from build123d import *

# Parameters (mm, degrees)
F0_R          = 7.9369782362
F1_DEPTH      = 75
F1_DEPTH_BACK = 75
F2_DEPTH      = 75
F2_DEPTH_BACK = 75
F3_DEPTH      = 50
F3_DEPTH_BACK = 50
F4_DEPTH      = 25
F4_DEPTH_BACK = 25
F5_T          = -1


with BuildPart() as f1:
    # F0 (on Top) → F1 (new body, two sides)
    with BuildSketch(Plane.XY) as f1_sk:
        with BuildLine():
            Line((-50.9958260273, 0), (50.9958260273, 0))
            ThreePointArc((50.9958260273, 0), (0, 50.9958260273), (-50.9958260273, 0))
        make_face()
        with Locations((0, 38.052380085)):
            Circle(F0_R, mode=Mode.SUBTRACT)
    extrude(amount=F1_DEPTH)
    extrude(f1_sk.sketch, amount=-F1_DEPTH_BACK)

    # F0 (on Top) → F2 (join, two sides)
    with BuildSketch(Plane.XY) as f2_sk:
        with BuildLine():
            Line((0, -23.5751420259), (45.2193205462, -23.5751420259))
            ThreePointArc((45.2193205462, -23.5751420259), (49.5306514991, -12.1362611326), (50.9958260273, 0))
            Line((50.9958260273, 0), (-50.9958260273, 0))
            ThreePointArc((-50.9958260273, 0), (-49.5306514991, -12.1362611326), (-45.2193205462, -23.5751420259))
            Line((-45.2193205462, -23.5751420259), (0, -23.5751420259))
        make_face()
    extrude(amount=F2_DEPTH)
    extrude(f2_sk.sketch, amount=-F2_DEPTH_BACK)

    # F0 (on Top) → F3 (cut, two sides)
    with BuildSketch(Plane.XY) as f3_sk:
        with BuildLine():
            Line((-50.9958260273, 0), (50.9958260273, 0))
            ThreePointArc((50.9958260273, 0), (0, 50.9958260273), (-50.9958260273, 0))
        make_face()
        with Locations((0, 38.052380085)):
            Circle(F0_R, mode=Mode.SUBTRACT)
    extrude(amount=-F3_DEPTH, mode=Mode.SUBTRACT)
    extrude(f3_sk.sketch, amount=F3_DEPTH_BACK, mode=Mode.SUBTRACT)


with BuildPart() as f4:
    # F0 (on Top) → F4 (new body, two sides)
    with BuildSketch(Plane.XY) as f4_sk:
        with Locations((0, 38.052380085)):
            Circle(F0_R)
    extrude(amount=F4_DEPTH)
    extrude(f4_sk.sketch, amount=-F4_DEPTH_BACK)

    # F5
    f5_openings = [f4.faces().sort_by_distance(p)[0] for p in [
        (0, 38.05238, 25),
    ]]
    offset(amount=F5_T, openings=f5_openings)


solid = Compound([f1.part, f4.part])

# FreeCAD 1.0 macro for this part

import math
import FreeCAD as App
import Part
import Sketcher

V = App.Vector
Q = App.Units.Quantity


def faces_at(feature, points):
    """Names of the faces that lie closest to the given points."""
    faces = feature.Shape.Faces
    near = lambda p: min(range(len(faces)), key=lambda i: faces[i].distToShape(Part.Vertex(*p))[0])
    return sorted({f"Face{near(p) + 1}" for p in points})

doc = App.newDocument("Part")
params = doc.addObject("Spreadsheet::Sheet", "Params")
for row, (alias, value) in enumerate([
    ("pad1_length", "75 mm"),
    ("pad1_length2", "75 mm"),
    ("pad2_length", "75 mm"),
    ("pad2_length2", "75 mm"),
    ("pocket1_length", "50 mm"),
    ("pocket1_length2", "50 mm"),
    ("pad3_length", "25 mm"),
    ("pad3_length2", "25 mm"),
    ("thickness_wall", "1 mm"),
], start=1):
    params.set(f"A{row}", alias)
    params.set(f"B{row}", "=" + value)
    params.setAlias(f"B{row}", alias)

body = doc.addObject("PartDesign::Body", "Body")

# Sketch on XY plane
sketch1 = doc.addObject("Sketcher::SketchObject", "Sketch")
body.addObject(sketch1)
sketch1.AttachmentSupport = (doc.XY_Plane, [""])
sketch1.MapMode = "FlatFace"
sketch1.addGeometry(Part.LineSegment(V(-51, 0, 0), V(51, 0, 0)), False)
sketch1.addGeometry(Part.ArcOfCircle(Part.Circle(V(0, 0, 0), V(0, 0, 1), 51), math.radians(0), math.radians(180)), False)
sketch1.addGeometry(Part.Circle(V(0, 38, 0), V(0, 0, 1), 8), False)
sketch1.addConstraint(Sketcher.Constraint("Coincident", 0, 1, 1, 2))
sketch1.addConstraint(Sketcher.Constraint("Coincident", 1, 1, 0, 2))
sketch1.addConstraint(Sketcher.Constraint("Horizontal", 0))
sketch1.addConstraint(Sketcher.Constraint("Coincident", 1, 3, -1, 1))
sketch1.addConstraint(Sketcher.Constraint("PointOnObject", 2, 3, -2))
sketch1.addConstraint(Sketcher.Constraint("PointOnObject", 0, 1, -1))
sketch1.addConstraint(Sketcher.Constraint("Diameter", 2, Q("15.873956 mm")))
sketch1.addConstraint(Sketcher.Constraint("Radius", 1, Q("50.995826 mm")))
sketch1.addConstraint(Sketcher.Constraint("DistanceY", -1, 1, 2, 3, Q("38.05238 mm")))
pad1 = doc.addObject("PartDesign::Pad", "Pad")
body.addObject(pad1)
pad1.Profile = sketch1
pad1.Type = "TwoLengths"
pad1.setExpression("Length", "Params.pad1_length")
pad1.setExpression("Length2", "Params.pad1_length2")

# Sketch on XY plane
sketch2 = doc.addObject("Sketcher::SketchObject", "Sketch001")
body.addObject(sketch2)
sketch2.AttachmentSupport = (doc.XY_Plane, [""])
sketch2.MapMode = "FlatFace"
sketch2.addGeometry(Part.ArcOfCircle(Part.Circle(V(0, 0, 0), V(0, 0, 1), 51), math.radians(-28), math.radians(0)), False)
sketch2.addGeometry(Part.LineSegment(V(51, 0, 0), V(-51, 0, 0)), False)
sketch2.addGeometry(Part.ArcOfCircle(Part.Circle(V(0, 0, 0), V(0, 0, 1), 51), math.radians(180), math.radians(208)), False)
sketch2.addGeometry(Part.LineSegment(V(-45, -24, 0), V(45, -24, 0)), False)
sketch2.addConstraint(Sketcher.Constraint("Coincident", 0, 2, 1, 1))
sketch2.addConstraint(Sketcher.Constraint("Coincident", 1, 2, 2, 1))
sketch2.addConstraint(Sketcher.Constraint("Coincident", 2, 2, 3, 1))
sketch2.addConstraint(Sketcher.Constraint("Coincident", 3, 2, 0, 1))
sketch2.addConstraint(Sketcher.Constraint("Horizontal", 1))
sketch2.addConstraint(Sketcher.Constraint("Horizontal", 3))
sketch2.addConstraint(Sketcher.Constraint("Coincident", 0, 3, -1, 1))
sketch2.addConstraint(Sketcher.Constraint("Coincident", 2, 3, -1, 1))
sketch2.addConstraint(Sketcher.Constraint("Equal", 0, 2))
sketch2.addConstraint(Sketcher.Constraint("PointOnObject", 0, 2, -1))
sketch2.addConstraint(Sketcher.Constraint("Radius", 0, Q("50.995826 mm")))
sketch2.addConstraint(Sketcher.Constraint("DistanceX", 3, 1, 3, 2, Q("90.438641 mm")))
pad2 = doc.addObject("PartDesign::Pad", "Pad001")
body.addObject(pad2)
pad2.Profile = sketch2
pad2.Type = "TwoLengths"
pad2.setExpression("Length", "Params.pad2_length")
pad2.setExpression("Length2", "Params.pad2_length2")

# Sketch on XY plane
sketch3 = doc.addObject("Sketcher::SketchObject", "Sketch002")
body.addObject(sketch3)
sketch3.AttachmentSupport = (doc.XY_Plane, [""])
sketch3.MapMode = "FlatFace"
sketch3.addGeometry(Part.LineSegment(V(-51, 0, 0), V(51, 0, 0)), False)
sketch3.addGeometry(Part.ArcOfCircle(Part.Circle(V(0, 0, 0), V(0, 0, 1), 51), math.radians(0), math.radians(180)), False)
sketch3.addGeometry(Part.Circle(V(0, 38, 0), V(0, 0, 1), 8), False)
sketch3.addConstraint(Sketcher.Constraint("Coincident", 0, 1, 1, 2))
sketch3.addConstraint(Sketcher.Constraint("Coincident", 1, 1, 0, 2))
sketch3.addConstraint(Sketcher.Constraint("Horizontal", 0))
sketch3.addConstraint(Sketcher.Constraint("Coincident", 1, 3, -1, 1))
sketch3.addConstraint(Sketcher.Constraint("PointOnObject", 2, 3, -2))
sketch3.addConstraint(Sketcher.Constraint("PointOnObject", 0, 1, -1))
sketch3.addConstraint(Sketcher.Constraint("Diameter", 2, Q("15.873956 mm")))
sketch3.addConstraint(Sketcher.Constraint("Radius", 1, Q("50.995826 mm")))
sketch3.addConstraint(Sketcher.Constraint("DistanceY", -1, 1, 2, 3, Q("38.05238 mm")))
pocket1 = doc.addObject("PartDesign::Pocket", "Pocket")
body.addObject(pocket1)
pocket1.Profile = sketch3
pocket1.Type = "TwoLengths"
pocket1.setExpression("Length", "Params.pocket1_length")
pocket1.setExpression("Length2", "Params.pocket1_length2")
body2 = doc.addObject("PartDesign::Body", "Body001")

# Sketch on XY plane
sketch4 = doc.addObject("Sketcher::SketchObject", "Sketch003")
body2.addObject(sketch4)
sketch4.AttachmentSupport = (doc.getObject("XY_Plane001"), [""])
sketch4.MapMode = "FlatFace"
sketch4.addGeometry(Part.Circle(V(0, 38, 0), V(0, 0, 1), 8), False)
sketch4.addConstraint(Sketcher.Constraint("PointOnObject", 0, 3, -2))
sketch4.addConstraint(Sketcher.Constraint("Diameter", 0, Q("15.873956 mm")))
sketch4.addConstraint(Sketcher.Constraint("DistanceY", -1, 1, 0, 3, Q("38.05238 mm")))
pad3 = doc.addObject("PartDesign::Pad", "Pad002")
body2.addObject(pad3)
pad3.Profile = sketch4
pad3.Type = "TwoLengths"
pad3.setExpression("Length", "Params.pad3_length")
pad3.setExpression("Length2", "Params.pad3_length2")
doc.recompute()

thickness = doc.addObject("PartDesign::Thickness", "Thickness")
body2.addObject(thickness)
thickness.Base = (pad3, faces_at(pad3, [(0, 38.052, 25)]))
thickness.setExpression("Value", "Params.thickness_wall")
thickness.Reversed = True
thickness.Join = "Arc"

doc.recompute()
